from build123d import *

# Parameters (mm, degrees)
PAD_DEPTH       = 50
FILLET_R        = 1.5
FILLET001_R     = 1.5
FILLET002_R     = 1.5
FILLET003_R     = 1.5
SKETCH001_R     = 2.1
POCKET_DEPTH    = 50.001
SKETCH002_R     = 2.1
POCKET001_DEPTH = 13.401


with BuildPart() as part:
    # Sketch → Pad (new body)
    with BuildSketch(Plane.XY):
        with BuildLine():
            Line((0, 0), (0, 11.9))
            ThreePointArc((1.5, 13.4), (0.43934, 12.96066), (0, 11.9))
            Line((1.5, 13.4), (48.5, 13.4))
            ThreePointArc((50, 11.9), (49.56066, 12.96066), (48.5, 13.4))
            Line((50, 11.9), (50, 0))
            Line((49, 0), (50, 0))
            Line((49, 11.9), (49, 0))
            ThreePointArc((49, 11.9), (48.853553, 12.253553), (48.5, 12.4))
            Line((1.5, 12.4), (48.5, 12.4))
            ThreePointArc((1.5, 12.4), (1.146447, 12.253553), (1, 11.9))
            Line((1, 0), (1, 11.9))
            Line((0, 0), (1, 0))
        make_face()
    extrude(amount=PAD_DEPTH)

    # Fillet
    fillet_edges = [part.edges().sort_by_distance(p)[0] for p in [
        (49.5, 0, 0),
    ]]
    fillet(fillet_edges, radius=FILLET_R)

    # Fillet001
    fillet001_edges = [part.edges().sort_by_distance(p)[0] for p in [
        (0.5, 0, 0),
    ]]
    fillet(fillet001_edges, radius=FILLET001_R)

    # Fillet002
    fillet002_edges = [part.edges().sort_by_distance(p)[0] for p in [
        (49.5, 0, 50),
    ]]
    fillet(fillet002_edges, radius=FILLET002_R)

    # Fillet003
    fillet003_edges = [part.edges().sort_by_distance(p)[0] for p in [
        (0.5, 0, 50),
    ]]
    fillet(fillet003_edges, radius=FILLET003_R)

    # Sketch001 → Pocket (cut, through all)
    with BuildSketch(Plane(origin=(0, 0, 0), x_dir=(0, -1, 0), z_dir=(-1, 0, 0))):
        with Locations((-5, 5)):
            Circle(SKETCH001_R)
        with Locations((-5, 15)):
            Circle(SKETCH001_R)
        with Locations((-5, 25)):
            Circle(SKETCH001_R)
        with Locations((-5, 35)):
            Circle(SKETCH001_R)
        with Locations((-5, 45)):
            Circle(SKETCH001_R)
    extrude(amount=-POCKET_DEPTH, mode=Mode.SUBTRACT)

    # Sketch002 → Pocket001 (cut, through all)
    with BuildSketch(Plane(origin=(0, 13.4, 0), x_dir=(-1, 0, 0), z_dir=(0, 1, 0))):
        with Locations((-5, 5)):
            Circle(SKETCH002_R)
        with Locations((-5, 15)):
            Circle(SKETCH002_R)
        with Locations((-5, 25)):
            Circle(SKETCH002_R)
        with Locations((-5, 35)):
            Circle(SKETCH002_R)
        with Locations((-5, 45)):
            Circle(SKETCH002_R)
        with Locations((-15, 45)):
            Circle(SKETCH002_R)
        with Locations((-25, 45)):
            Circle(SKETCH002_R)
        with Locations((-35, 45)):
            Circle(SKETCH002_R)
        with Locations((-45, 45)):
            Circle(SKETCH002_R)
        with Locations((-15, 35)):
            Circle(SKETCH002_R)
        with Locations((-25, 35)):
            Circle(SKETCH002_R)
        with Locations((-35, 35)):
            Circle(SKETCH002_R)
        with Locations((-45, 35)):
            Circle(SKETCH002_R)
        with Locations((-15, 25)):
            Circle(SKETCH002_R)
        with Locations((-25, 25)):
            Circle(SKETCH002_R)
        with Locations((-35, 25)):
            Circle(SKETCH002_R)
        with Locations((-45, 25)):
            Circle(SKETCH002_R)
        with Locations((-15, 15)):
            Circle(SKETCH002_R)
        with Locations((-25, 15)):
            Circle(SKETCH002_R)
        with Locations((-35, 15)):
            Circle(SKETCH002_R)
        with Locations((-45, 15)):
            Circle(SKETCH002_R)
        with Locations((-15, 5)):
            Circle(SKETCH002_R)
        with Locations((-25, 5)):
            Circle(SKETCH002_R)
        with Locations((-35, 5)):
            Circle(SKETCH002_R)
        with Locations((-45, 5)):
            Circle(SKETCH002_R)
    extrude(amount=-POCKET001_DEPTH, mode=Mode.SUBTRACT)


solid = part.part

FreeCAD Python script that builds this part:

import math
import FreeCAD as App
import Part
import Sketcher
from FreeCAD import Vector


def edges_at(feature, points):
    """Names of the edges that pass closest to the given points."""
    edges = feature.Shape.Edges
    near = lambda p: min(range(len(edges)), key=lambda i: edges[i].distToShape(Part.Vertex(*p))[0])
    return sorted({f"Edge{near(p) + 1}" for p in points})

doc = App.newDocument("Part")
params = doc.addObject("Spreadsheet::Sheet", "Params")
for row, (alias, value) in enumerate([
    ("sketch1_radius", "0.500001 mm"),
    ("sketch1_radius2", "1.500001 mm"),
    ("sketch1_width", "47 mm"),
    ("sketch1_height", "11.9 mm"),
    ("pad1_length", "50 mm"),
    ("fillet_radius", "1.5 mm"),
    ("fillet2_radius", "1.5 mm"),
    ("fillet3_radius", "1.5 mm"),
    ("fillet4_radius", "1.5 mm"),
    ("sketch2_diameter", "4.2 mm"),
    ("sketch3_diameter", "4.2 mm"),
], start=1):
    params.set(f"A{row}", alias)
    params.set(f"B{row}", "=" + value)
    params.setAlias(f"B{row}", alias)

body = doc.addObject("PartDesign::Body", "Body")

# Sketch on XY plane
sketch1 = body.newObject("Sketcher::SketchObject", "Sketch")
sketch1.AttachmentSupport = (doc.getObject("XY_Plane"), [""])
sketch1.MapMode = "FlatFace"
sketch1.addGeometry([
    Part.LineSegment(Vector(0, 11.9, 0), Vector(0, 0, 0)),  # 0
    Part.LineSegment(Vector(0, 0, 0), Vector(1, 0, 0)),  # 1
    Part.LineSegment(Vector(1, 0, 0), Vector(1, 11.9, 0)),  # 2
    Part.ArcOfCircle(Part.Circle(Vector(1.5, 11.9, 0), Vector(0, 0, 1), 0.5), math.radians(90), math.radians(180)),  # 3
    Part.LineSegment(Vector(1.5, 12.4, 0), Vector(48.5, 12.4, 0)),  # 4
    Part.ArcOfCircle(Part.Circle(Vector(48.5, 11.9, 0), Vector(0, 0, 1), 0.5), math.radians(0), math.radians(90)),  # 5
    Part.LineSegment(Vector(49, 11.9, 0), Vector(49, 0, 0)),  # 6
    Part.LineSegment(Vector(49, 0, 0), Vector(50, 0, 0)),  # 7
    Part.LineSegment(Vector(50, 0, 0), Vector(50, 11.9, 0)),  # 8
    Part.ArcOfCircle(Part.Circle(Vector(48.5, 11.9, 0), Vector(0, 0, 1), 1.5), math.radians(0), math.radians(90)),  # 9
    Part.LineSegment(Vector(48.5, 13.4, 0), Vector(1.5, 13.4, 0)),  # 10
    Part.ArcOfCircle(Part.Circle(Vector(1.5, 11.9, 0), Vector(0, 0, 1), 1.5), math.radians(90), math.radians(180)),  # 11
], False)
sketch1.addConstraint([
    Sketcher.Constraint("Coincident", 0, 2, 1, 1),
    Sketcher.Constraint("Coincident", 1, 2, 2, 1),
    Sketcher.Constraint("Coincident", 2, 2, 3, 2),
    Sketcher.Constraint("Coincident", 3, 1, 4, 1),
    Sketcher.Constraint("Coincident", 4, 2, 5, 2),
    Sketcher.Constraint("Coincident", 5, 1, 6, 1),
    Sketcher.Constraint("Coincident", 6, 2, 7, 1),
    Sketcher.Constraint("Coincident", 7, 2, 8, 1),
    Sketcher.Constraint("Tangent", 8, 2, 9, 1),
    Sketcher.Constraint("Tangent", 9, 2, 10, 1),
    Sketcher.Constraint("Tangent", 10, 2, 11, 1),
    Sketcher.Constraint("Tangent", 11, 2, 0, 1),
    Sketcher.Constraint("Vertical", 0),
    Sketcher.Constraint("Horizontal", 1),
    Sketcher.Constraint("Vertical", 2),
    Sketcher.Constraint("Horizontal", 4),
    Sketcher.Constraint("Vertical", 6),
    Sketcher.Constraint("Horizontal", 7),
    Sketcher.Constraint("Vertical", 8),
    Sketcher.Constraint("Horizontal", 10),
    Sketcher.Constraint("Coincident", 0, 2, -1, 1),
    Sketcher.Constraint("Coincident", 9, 3, 5, 3),
    Sketcher.Constraint("Coincident", 11, 3, 3, 3),
    Sketcher.Constraint("Equal", 3, 5),
    Sketcher.Constraint("PointOnObject", 6, 2, -1),
    Sketcher.Constraint("Horizontal", 11, 3, 2, 2),
    Sketcher.Constraint("Horizontal", 2, 2, 5, 1),
    Sketcher.Constraint("Vertical", 11, 3, 3, 1),
    Sketcher.Constraint("Vertical", 9, 3, 4, 2),
    Sketcher.Constraint("Radius", 3, 0.500001),
    Sketcher.Constraint("Radius", 9, 1.500001),
    Sketcher.Constraint("DistanceX", 4, 1, 4, 2, 47.0),
    Sketcher.Constraint("DistanceY", 0, 2, 0, 1, 11.9),
])
sketch1.setExpression("Constraints[29]", "Params.sketch1_radius")
sketch1.setExpression("Constraints[30]", "Params.sketch1_radius2")
sketch1.setExpression("Constraints[31]", "Params.sketch1_width")
sketch1.setExpression("Constraints[32]", "Params.sketch1_height")
pad1 = body.newObject("PartDesign::Pad", "Pad")
pad1.Profile = sketch1
pad1.setExpression("Length", "Params.pad1_length")
doc.recompute()

fillet = body.newObject("PartDesign::Fillet", "Fillet")
fillet.Base = (pad1, edges_at(pad1, [(49.5, 0, 0)]))
fillet.setExpression("Radius", "Params.fillet_radius")
doc.recompute()

fillet2 = body.newObject("PartDesign::Fillet", "Fillet001")
fillet2.Base = (fillet, edges_at(fillet, [(0.5, 0, 0)]))
fillet2.setExpression("Radius", "Params.fillet2_radius")
doc.recompute()

fillet3 = body.newObject("PartDesign::Fillet", "Fillet002")
fillet3.Base = (fillet2, edges_at(fillet2, [(49.5, 0, 50)]))
fillet3.setExpression("Radius", "Params.fillet3_radius")
doc.recompute()

fillet4 = body.newObject("PartDesign::Fillet", "Fillet003")
fillet4.Base = (fillet3, edges_at(fillet3, [(0.5, 0, 50)]))
fillet4.setExpression("Radius", "Params.fillet4_radius")

# Sketch on YZ plane
sketch2 = body.newObject("Sketcher::SketchObject", "Sketch001")
sketch2.AttachmentSupport = (doc.getObject("YZ_Plane"), [""])
sketch2.MapMode = "FlatFace"
sketch2.addGeometry([
    Part.Circle(Vector(5, 5, 0), Vector(0, 0, 1), 2.1),  # 0
    Part.Circle(Vector(5, 15, 0), Vector(0, 0, 1), 2.1),  # 1
    Part.Circle(Vector(5, 25, 0), Vector(0, 0, 1), 2.1),  # 2
    Part.Circle(Vector(5, 35, 0), Vector(0, 0, 1), 2.1),  # 3
    Part.Circle(Vector(5, 45, 0), Vector(0, 0, 1), 2.1),  # 4
], False)
sketch2.addConstraint([
    Sketcher.Constraint("Equal", 0, 1),
    Sketcher.Constraint("Equal", 1, 2),
    Sketcher.Constraint("Equal", 2, 3),
    Sketcher.Constraint("Equal", 3, 4),
    Sketcher.Constraint("Vertical", 0, 3, 1, 3),
    Sketcher.Constraint("Vertical", 1, 3, 2, 3),
    Sketcher.Constraint("Vertical", 2, 3, 3, 3),
    Sketcher.Constraint("Vertical", 3, 3, 4, 3),
    Sketcher.Constraint("Diameter", 0, 4.2),
    Sketcher.Constraint("DistanceX", -1, 1, 0, 3, 5.0),
    Sketcher.Constraint("DistanceY", -1, 1, 0, 3, 5.0),
    Sketcher.Constraint("DistanceY", -1, 1, 1, 3, 15.0),
    Sketcher.Constraint("DistanceY", -1, 1, 2, 3, 25.0),
    Sketcher.Constraint("DistanceY", -1, 1, 3, 3, 35.0),
    Sketcher.Constraint("DistanceY", -1, 1, 4, 3, 45.0),
])
sketch2.setExpression("Constraints[8]", "Params.sketch2_diameter")
pocket1 = body.newObject("PartDesign::Pocket", "Pocket")
pocket1.Profile = sketch2
pocket1.Type = "ThroughAll"
pocket1.Reversed = True

# Sketch on XZ plane
sketch3 = body.newObject("Sketcher::SketchObject", "Sketch002")
sketch3.AttachmentSupport = (doc.getObject("XZ_Plane"), [""])
sketch3.MapMode = "FlatFace"
sketch3.AttachmentOffset = App.Placement(Vector(0, 0, -13.4), App.Rotation())
sketch3.addGeometry([
    Part.Circle(Vector(5, 5, 0), Vector(0, 0, 1), 2.1),  # 0
    Part.Circle(Vector(5, 15, 0), Vector(0, 0, 1), 2.1),  # 1
    Part.Circle(Vector(5, 25, 0), Vector(0, 0, 1), 2.1),  # 2
    Part.Circle(Vector(5, 35, 0), Vector(0, 0, 1), 2.1),  # 3
    Part.Circle(Vector(5, 45, 0), Vector(0, 0, 1), 2.1),  # 4
    Part.Circle(Vector(15, 45, 0), Vector(0, 0, 1), 2.1),  # 5
    Part.Circle(Vector(25, 45, 0), Vector(0, 0, 1), 2.1),  # 6
    Part.Circle(Vector(35, 45, 0), Vector(0, 0, 1), 2.1),  # 7
    Part.Circle(Vector(45, 45, 0), Vector(0, 0, 1), 2.1),  # 8
    Part.Circle(Vector(15, 35, 0), Vector(0, 0, 1), 2.1),  # 9
    Part.Circle(Vector(25, 35, 0), Vector(0, 0, 1), 2.1),  # 10
    Part.Circle(Vector(35, 35, 0), Vector(0, 0, 1), 2.1),  # 11
    Part.Circle(Vector(45, 35, 0), Vector(0, 0, 1), 2.1),  # 12
    Part.Circle(Vector(15, 25, 0), Vector(0, 0, 1), 2.1),  # 13
    Part.Circle(Vector(25, 25, 0), Vector(0, 0, 1), 2.1),  # 14
    Part.Circle(Vector(35, 25, 0), Vector(0, 0, 1), 2.1),  # 15
    Part.Circle(Vector(45, 25, 0), Vector(0, 0, 1), 2.1),  # 16
    Part.Circle(Vector(15, 15, 0), Vector(0, 0, 1), 2.1),  # 17
    Part.Circle(Vector(25, 15, 0), Vector(0, 0, 1), 2.1),  # 18
    Part.Circle(Vector(35, 15, 0), Vector(0, 0, 1), 2.1),  # 19
    Part.Circle(Vector(45, 15, 0), Vector(0, 0, 1), 2.1),  # 20
    Part.Circle(Vector(15, 5, 0), Vector(0, 0, 1), 2.1),  # 21
    Part.Circle(Vector(25, 5, 0), Vector(0, 0, 1), 2.1),  # 22
    Part.Circle(Vector(35, 5, 0), Vector(0, 0, 1), 2.1),  # 23
    Part.Circle(Vector(45, 5, 0), Vector(0, 0, 1), 2.1),  # 24
], False)
sketch3.addConstraint([
    Sketcher.Constraint("Equal", 0, 1),
    Sketcher.Constraint("Equal", 1, 2),
    Sketcher.Constraint("Equal", 2, 3),
    Sketcher.Constraint("Equal", 3, 4),
    Sketcher.Constraint("Equal", 4, 5),
    Sketcher.Constraint("Equal", 5, 6),
    Sketcher.Constraint("Equal", 6, 7),
    Sketcher.Constraint("Equal", 7, 8),
    Sketcher.Constraint("Equal", 8, 9),
    Sketcher.Constraint("Equal", 9, 10),
    Sketcher.Constraint("Equal", 10, 11),
    Sketcher.Constraint("Equal", 11, 12),
    Sketcher.Constraint("Equal", 12, 13),
    Sketcher.Constraint("Equal", 13, 14),
    Sketcher.Constraint("Equal", 14, 15),
    Sketcher.Constraint("Equal", 15, 16),
    Sketcher.Constraint("Equal", 16, 17),
    Sketcher.Constraint("Equal", 17, 18),
    Sketcher.Constraint("Equal", 18, 19),
    Sketcher.Constraint("Equal", 19, 20),
    Sketcher.Constraint("Equal", 20, 21),
    Sketcher.Constraint("Equal", 21, 22),
    Sketcher.Constraint("Equal", 22, 23),
    Sketcher.Constraint("Equal", 23, 24),
    Sketcher.Constraint("Horizontal", 4, 3, 5, 3),
    Sketcher.Constraint("Horizontal", 5, 3, 6, 3),
    Sketcher.Constraint("Horizontal", 6, 3, 7, 3),
    Sketcher.Constraint("Horizontal", 7, 3, 8, 3),
    Sketcher.Constraint("Horizontal", 3, 3, 9, 3),
    Sketcher.Constraint("Horizontal", 9, 3, 10, 3),
    Sketcher.Constraint("Horizontal", 10, 3, 11, 3),
    Sketcher.Constraint("Horizontal", 11, 3, 12, 3),
    Sketcher.Constraint("Horizontal", 2, 3, 13, 3),
    Sketcher.Constraint("Horizontal", 13, 3, 14, 3),
    Sketcher.Constraint("Horizontal", 14, 3, 15, 3),
    Sketcher.Constraint("Horizontal", 15, 3, 16, 3),
    Sketcher.Constraint("Horizontal", 1, 3, 17, 3),
    Sketcher.Constraint("Horizontal", 17, 3, 18, 3),
    Sketcher.Constraint("Horizontal", 18, 3, 19, 3),
    Sketcher.Constraint("Horizontal", 19, 3, 20, 3),
    Sketcher.Constraint("Horizontal", 0, 3, 21, 3),
    Sketcher.Constraint("Horizontal", 21, 3, 22, 3),
    Sketcher.Constraint("Horizontal", 22, 3, 23, 3),
    Sketcher.Constraint("Horizontal", 23, 3, 24, 3),
    Sketcher.Constraint("Vertical", 0, 3, 1, 3),
    Sketcher.Constraint("Vertical", 1, 3, 2, 3),
    Sketcher.Constraint("Vertical", 2, 3, 3, 3),
    Sketcher.Constraint("Vertical", 3, 3, 4, 3),
    Sketcher.Constraint("Vertical", 5, 3, 9, 3),
    Sketcher.Constraint("Vertical", 6, 3, 10, 3),
    Sketcher.Constraint("Vertical", 7, 3, 11, 3),
    Sketcher.Constraint("Vertical", 8, 3, 12, 3),
    Sketcher.Constraint("Vertical", 9, 3, 13, 3),
    Sketcher.Constraint("Vertical", 10, 3, 14, 3),
    Sketcher.Constraint("Vertical", 11, 3, 15, 3),
    Sketcher.Constraint("Vertical", 12, 3, 16, 3),
    Sketcher.Constraint("Vertical", 13, 3, 17, 3),
    Sketcher.Constraint("Vertical", 14, 3, 18, 3),
    Sketcher.Constraint("Vertical", 15, 3, 19, 3),
    Sketcher.Constraint("Vertical", 16, 3, 20, 3),
    Sketcher.Constraint("Vertical", 17, 3, 21, 3),
    Sketcher.Constraint("Vertical", 18, 3, 22, 3),
    Sketcher.Constraint("Vertical", 19, 3, 23, 3),
    Sketcher.Constraint("Vertical", 20, 3, 24, 3),
    Sketcher.Constraint("Diameter", 0, 4.2),
    Sketcher.Constraint("DistanceX", -1, 1, 0, 3, 5.0),
    Sketcher.Constraint("DistanceY", -1, 1, 0, 3, 5.0),
    Sketcher.Constraint("DistanceY", -1, 1, 1, 3, 15.0),
    Sketcher.Constraint("DistanceY", -1, 1, 2, 3, 25.0),
    Sketcher.Constraint("DistanceY", -1, 1, 3, 3, 35.0),
    Sketcher.Constraint("DistanceY", -1, 1, 4, 3, 45.0),
    Sketcher.Constraint("DistanceX", -1, 1, 5, 3, 15.0),
    Sketcher.Constraint("DistanceX", -1, 1, 6, 3, 25.0),
    Sketcher.Constraint("DistanceX", -1, 1, 7, 3, 35.0),
    Sketcher.Constraint("DistanceX", -1, 1, 8, 3, 45.0),
])
sketch3.setExpression("Constraints[64]", "Params.sketch3_diameter")
pocket2 = body.newObject("PartDesign::Pocket", "Pocket001")
pocket2.Profile = sketch3
pocket2.Type = "ThroughAll"
pocket2.Reversed = True

doc.recompute()
